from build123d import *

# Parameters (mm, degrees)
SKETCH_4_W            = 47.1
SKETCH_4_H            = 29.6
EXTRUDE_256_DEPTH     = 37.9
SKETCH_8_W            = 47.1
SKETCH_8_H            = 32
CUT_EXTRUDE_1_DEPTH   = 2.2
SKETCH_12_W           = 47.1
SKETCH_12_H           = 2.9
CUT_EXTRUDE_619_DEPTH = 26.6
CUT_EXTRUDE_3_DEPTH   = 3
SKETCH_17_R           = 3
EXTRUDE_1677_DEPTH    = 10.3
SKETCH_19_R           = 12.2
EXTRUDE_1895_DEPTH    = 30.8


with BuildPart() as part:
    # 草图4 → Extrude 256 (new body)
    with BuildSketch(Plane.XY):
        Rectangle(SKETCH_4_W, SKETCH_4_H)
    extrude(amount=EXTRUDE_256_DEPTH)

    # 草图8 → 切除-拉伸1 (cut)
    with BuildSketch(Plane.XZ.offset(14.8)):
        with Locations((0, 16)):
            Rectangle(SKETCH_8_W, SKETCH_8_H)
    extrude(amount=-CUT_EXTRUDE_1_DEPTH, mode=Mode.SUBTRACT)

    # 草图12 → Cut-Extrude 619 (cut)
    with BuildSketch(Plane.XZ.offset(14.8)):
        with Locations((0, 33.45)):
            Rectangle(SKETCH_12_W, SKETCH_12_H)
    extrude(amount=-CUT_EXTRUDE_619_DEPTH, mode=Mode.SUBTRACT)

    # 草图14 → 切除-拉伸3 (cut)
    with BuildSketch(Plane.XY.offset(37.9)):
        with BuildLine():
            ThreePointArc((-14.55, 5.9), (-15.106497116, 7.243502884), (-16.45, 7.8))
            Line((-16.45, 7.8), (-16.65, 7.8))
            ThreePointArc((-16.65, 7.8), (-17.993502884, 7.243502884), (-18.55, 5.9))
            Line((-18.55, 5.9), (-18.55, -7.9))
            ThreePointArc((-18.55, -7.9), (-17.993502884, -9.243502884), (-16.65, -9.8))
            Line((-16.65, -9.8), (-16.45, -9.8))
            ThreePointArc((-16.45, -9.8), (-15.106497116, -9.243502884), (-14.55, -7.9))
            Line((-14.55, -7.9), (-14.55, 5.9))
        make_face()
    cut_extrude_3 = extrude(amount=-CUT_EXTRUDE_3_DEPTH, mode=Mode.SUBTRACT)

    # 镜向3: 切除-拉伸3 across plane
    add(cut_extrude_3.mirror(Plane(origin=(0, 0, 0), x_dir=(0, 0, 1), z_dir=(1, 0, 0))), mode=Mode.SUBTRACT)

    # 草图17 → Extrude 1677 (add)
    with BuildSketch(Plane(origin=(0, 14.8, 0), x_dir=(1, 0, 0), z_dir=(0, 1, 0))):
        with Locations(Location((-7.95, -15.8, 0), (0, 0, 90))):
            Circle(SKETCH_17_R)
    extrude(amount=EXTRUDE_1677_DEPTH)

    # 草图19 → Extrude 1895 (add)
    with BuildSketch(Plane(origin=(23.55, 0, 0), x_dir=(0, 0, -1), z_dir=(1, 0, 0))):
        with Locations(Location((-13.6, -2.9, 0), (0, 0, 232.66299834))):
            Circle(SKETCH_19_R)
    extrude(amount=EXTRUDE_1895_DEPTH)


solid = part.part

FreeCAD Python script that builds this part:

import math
import FreeCAD as App
import Part
import Sketcher
from FreeCAD import Vector
Q = App.Units.Quantity

doc = App.newDocument("Part")
params = doc.addObject("Spreadsheet::Sheet", "Params")
for row, (alias, value) in enumerate([
    ("sketch1_width", "47.1 mm"),
    ("sketch1_height", "29.6 mm"),
    ("pad1_length", "37.9 mm"),
    ("sketch2_height", "32 mm"),
    ("sketch2_width", "47.1 mm"),
    ("pocket1_length", "2.2 mm"),
    ("sketch3_width", "47.1 mm"),
    ("sketch3_height", "2.9 mm"),
    ("pocket2_length", "26.6 mm"),
    ("sketch4_radius", "1.9 mm"),
    ("sketch4_width", "0.2 mm"),
    ("sketch4_height", "13.8 mm"),
    ("pocket3_length", "3 mm"),
    ("sketch5_diameter", "6 mm"),
    ("pad2_length", "10.3 mm"),
    ("sketch6_diameter", "24.4 mm"),
    ("pad3_length", "30.8 mm"),
], start=1):
    params.set(f"A{row}", alias)
    params.set(f"B{row}", "=" + value)
    params.setAlias(f"B{row}", alias)

body = doc.addObject("PartDesign::Body", "Body")

sketch1 = body.newObject("Sketcher::SketchObject", "Sketch")
sketch1.AttachmentSupport = (doc.getObject("XY_Plane"), [""])
sketch1.MapMode = "FlatFace"
sketch1.addGeometry(Part.LineSegment(Vector(-24, 15, 0), Vector(-24, -15, 0)), False)
sketch1.addGeometry(Part.LineSegment(Vector(-24, -15, 0), Vector(24, -15, 0)), False)
sketch1.addGeometry(Part.LineSegment(Vector(24, -15, 0), Vector(24, 15, 0)), False)
sketch1.addGeometry(Part.LineSegment(Vector(24, 15, 0), Vector(-24, 15, 0)), False)
sketch1.addConstraint(Sketcher.Constraint("Coincident", 0, 2, 1, 1))
sketch1.addConstraint(Sketcher.Constraint("Coincident", 1, 2, 2, 1))
sketch1.addConstraint(Sketcher.Constraint("Coincident", 2, 2, 3, 1))
sketch1.addConstraint(Sketcher.Constraint("Coincident", 3, 2, 0, 1))
sketch1.addConstraint(Sketcher.Constraint("Vertical", 0))
sketch1.addConstraint(Sketcher.Constraint("Horizontal", 1))
sketch1.addConstraint(Sketcher.Constraint("Vertical", 2))
sketch1.addConstraint(Sketcher.Constraint("Horizontal", 3))
sketch1.addConstraint(Sketcher.Constraint("Symmetric", 0, 2, 2, 2, -1, 1))
sketch1.addConstraint(Sketcher.Constraint("DistanceX", 1, 1, 1, 2, Q("47.1 mm")))
sketch1.addConstraint(Sketcher.Constraint("DistanceY", 0, 2, 0, 1, Q("29.6 mm")))
sketch1.setExpression("Constraints[9]", "Params.sketch1_width")
sketch1.setExpression("Constraints[10]", "Params.sketch1_height")
pad1 = body.newObject("PartDesign::Pad", "Pad")
pad1.Profile = sketch1
pad1.setExpression("Length", "Params.pad1_length")

sketch2 = body.newObject("Sketcher::SketchObject", "Sketch001")
sketch2.AttachmentSupport = (doc.getObject("XZ_Plane"), [""])
sketch2.MapMode = "FlatFace"
sketch2.AttachmentOffset = App.Placement(Vector(0, 0, 14.8), App.Rotation())
sketch2.addGeometry(Part.LineSegment(Vector(-24, 32, 0), Vector(-24, 0, 0)), False)
sketch2.addGeometry(Part.LineSegment(Vector(-24, 0, 0), Vector(24, 0, 0)), False)
sketch2.addGeometry(Part.LineSegment(Vector(24, 0, 0), Vector(24, 32, 0)), False)
sketch2.addGeometry(Part.LineSegment(Vector(24, 32, 0), Vector(-24, 32, 0)), False)
sketch2.addConstraint(Sketcher.Constraint("Coincident", 0, 2, 1, 1))
sketch2.addConstraint(Sketcher.Constraint("Coincident", 1, 2, 2, 1))
sketch2.addConstraint(Sketcher.Constraint("Coincident", 2, 2, 3, 1))
sketch2.addConstraint(Sketcher.Constraint("Coincident", 3, 2, 0, 1))
sketch2.addConstraint(Sketcher.Constraint("Vertical", 0))
sketch2.addConstraint(Sketcher.Constraint("Horizontal", 1))
sketch2.addConstraint(Sketcher.Constraint("Vertical", 2))
sketch2.addConstraint(Sketcher.Constraint("Horizontal", 3))
sketch2.addConstraint(Sketcher.Constraint("Symmetric", 0, 2, 1, 2, -1, 1))
sketch2.addConstraint(Sketcher.Constraint("DistanceY", 0, 2, 0, 1, Q("32 mm")))
sketch2.addConstraint(Sketcher.Constraint("DistanceX", 1, 1, 1, 2, Q("47.1 mm")))
sketch2.setExpression("Constraints[9]", "Params.sketch2_height")
sketch2.setExpression("Constraints[10]", "Params.sketch2_width")
pocket1 = body.newObject("PartDesign::Pocket", "Pocket")
pocket1.Profile = sketch2
pocket1.setExpression("Length", "Params.pocket1_length")

sketch3 = body.newObject("Sketcher::SketchObject", "Sketch002")
sketch3.AttachmentSupport = (doc.getObject("XZ_Plane"), [""])
sketch3.MapMode = "FlatFace"
sketch3.AttachmentOffset = App.Placement(Vector(0, 0, 14.8), App.Rotation())
sketch3.addGeometry(Part.LineSegment(Vector(-23.6, 34.9, 0), Vector(-23.6, 32, 0)), False)
sketch3.addGeometry(Part.LineSegment(Vector(-23.6, 32, 0), Vector(23.6, 32, 0)), False)
sketch3.addGeometry(Part.LineSegment(Vector(23.6, 32, 0), Vector(23.6, 34.9, 0)), False)
sketch3.addGeometry(Part.LineSegment(Vector(23.6, 34.9, 0), Vector(-23.6, 34.9, 0)), False)
sketch3.addConstraint(Sketcher.Constraint("Coincident", 0, 2, 1, 1))
sketch3.addConstraint(Sketcher.Constraint("Coincident", 1, 2, 2, 1))
sketch3.addConstraint(Sketcher.Constraint("Coincident", 2, 2, 3, 1))
sketch3.addConstraint(Sketcher.Constraint("Coincident", 3, 2, 0, 1))
sketch3.addConstraint(Sketcher.Constraint("Vertical", 0))
sketch3.addConstraint(Sketcher.Constraint("Horizontal", 1))
sketch3.addConstraint(Sketcher.Constraint("Vertical", 2))
sketch3.addConstraint(Sketcher.Constraint("Horizontal", 3))
sketch3.addConstraint(Sketcher.Constraint("DistanceX", 1, 1, 1, 2, Q("47.1 mm")))
sketch3.addConstraint(Sketcher.Constraint("DistanceY", 0, 2, 0, 1, Q("2.9 mm")))
sketch3.addConstraint(Sketcher.Constraint("DistanceY", -1, 1, 0, 2, Q("32 mm")))
sketch3.addConstraint(Sketcher.Constraint("DistanceX", 0, 2, -1, 1, Q("23.55 mm")))
sketch3.setExpression("Constraints[8]", "Params.sketch3_width")
sketch3.setExpression("Constraints[9]", "Params.sketch3_height")
pocket2 = body.newObject("PartDesign::Pocket", "Pocket001")
pocket2.Profile = sketch3
pocket2.setExpression("Length", "Params.pocket2_length")

sketch4 = body.newObject("Sketcher::SketchObject", "Sketch003")
sketch4.AttachmentSupport = (doc.getObject("XY_Plane"), [""])
sketch4.MapMode = "FlatFace"
sketch4.AttachmentOffset = App.Placement(Vector(0, 0, 37.9), App.Rotation())
sketch4.addGeometry(Part.ArcOfCircle(Part.Circle(Vector(-16.45, 5.9, 0), Vector(0, 0, 1), 1.9), math.radians(0), math.radians(90)), False)
sketch4.addGeometry(Part.LineSegment(Vector(-16.45, 7.8, 0), Vector(-16.65, 7.8, 0)), False)
sketch4.addGeometry(Part.ArcOfCircle(Part.Circle(Vector(-16.65, 5.9, 0), Vector(0, 0, 1), 1.9), math.radians(90), math.radians(180)), False)
sketch4.addGeometry(Part.LineSegment(Vector(-18.55, 5.9, 0), Vector(-18.55, -7.9, 0)), False)
sketch4.addGeometry(Part.ArcOfCircle(Part.Circle(Vector(-16.65, -7.9, 0), Vector(0, 0, 1), 1.9), math.radians(-180), math.radians(-90)), False)
sketch4.addGeometry(Part.LineSegment(Vector(-16.65, -9.8, 0), Vector(-16.45, -9.8, 0)), False)
sketch4.addGeometry(Part.ArcOfCircle(Part.Circle(Vector(-16.45, -7.9, 0), Vector(0, 0, 1), 1.9), math.radians(-90), math.radians(0)), False)
sketch4.addGeometry(Part.LineSegment(Vector(-14.55, -7.9, 0), Vector(-14.55, 5.9, 0)), False)
sketch4.addConstraint(Sketcher.Constraint("Tangent", 0, 2, 1, 1))
sketch4.addConstraint(Sketcher.Constraint("Tangent", 1, 2, 2, 1))
sketch4.addConstraint(Sketcher.Constraint("Tangent", 2, 2, 3, 1))
sketch4.addConstraint(Sketcher.Constraint("Tangent", 3, 2, 4, 1))
sketch4.addConstraint(Sketcher.Constraint("Tangent", 4, 2, 5, 1))
sketch4.addConstraint(Sketcher.Constraint("Tangent", 5, 2, 6, 1))
sketch4.addConstraint(Sketcher.Constraint("Tangent", 6, 2, 7, 1))
sketch4.addConstraint(Sketcher.Constraint("Tangent", 7, 2, 0, 1))
sketch4.addConstraint(Sketcher.Constraint("Horizontal", 1))
sketch4.addConstraint(Sketcher.Constraint("Vertical", 3))
sketch4.addConstraint(Sketcher.Constraint("Horizontal", 5))
sketch4.addConstraint(Sketcher.Constraint("Vertical", 7))
sketch4.addConstraint(Sketcher.Constraint("Equal", 0, 2))
sketch4.addConstraint(Sketcher.Constraint("Equal", 2, 4))
sketch4.addConstraint(Sketcher.Constraint("Equal", 4, 6))
sketch4.addConstraint(Sketcher.Constraint("Radius", 0, Q("1.9 mm")))
sketch4.addConstraint(Sketcher.Constraint("DistanceX", 1, 2, 1, 1, Q("0.2 mm")))
sketch4.addConstraint(Sketcher.Constraint("DistanceY", 3, 2, 3, 1, Q("13.8 mm")))
sketch4.addConstraint(Sketcher.Constraint("DistanceY", -1, 1, 0, 3, Q("5.9 mm")))
sketch4.addConstraint(Sketcher.Constraint("DistanceX", 0, 3, -1, 1, Q("16.45 mm")))
sketch4.setExpression("Constraints[15]", "Params.sketch4_radius")
sketch4.setExpression("Constraints[16]", "Params.sketch4_width")
sketch4.setExpression("Constraints[17]", "Params.sketch4_height")
pocket3 = body.newObject("PartDesign::Pocket", "Pocket002")
pocket3.Profile = sketch4
pocket3.setExpression("Length", "Params.pocket3_length")
doc.recompute()

mirrored = body.newObject("PartDesign::Mirrored", "Mirrored")
mirrored.Originals = [pocket3]
mirrored.MirrorPlane = (doc.getObject("YZ_Plane"), [""])
body.Tip = mirrored

sketch5 = body.newObject("Sketcher::SketchObject", "Sketch004")
sketch5.AttachmentSupport = (doc.getObject("XZ_Plane"), [""])
sketch5.MapMode = "FlatFace"
sketch5.AttachmentOffset = App.Placement(Vector(0, 0, -14.8), App.Rotation())
sketch5.addGeometry(Part.Circle(Vector(-8, 15.8, 0), Vector(0, 0, 1), 3), False)
sketch5.addConstraint(Sketcher.Constraint("Diameter", 0, Q("6 mm")))
sketch5.addConstraint(Sketcher.Constraint("DistanceY", -1, 1, 0, 3, Q("15.8 mm")))
sketch5.addConstraint(Sketcher.Constraint("DistanceX", 0, 3, -1, 1, Q("7.95 mm")))
sketch5.setExpression("Constraints[0]", "Params.sketch5_diameter")
pad2 = body.newObject("PartDesign::Pad", "Pad001")
pad2.Profile = sketch5
pad2.setExpression("Length", "Params.pad2_length")
pad2.Reversed = True

sketch6 = body.newObject("Sketcher::SketchObject", "Sketch005")
sketch6.AttachmentSupport = (doc.getObject("YZ_Plane"), [""])
sketch6.MapMode = "FlatFace"
sketch6.AttachmentOffset = App.Placement(Vector(0, 0, 23.55), App.Rotation())
sketch6.addGeometry(Part.Circle(Vector(-3, 14, 0), Vector(0, 0, 1), 12), False)
sketch6.addConstraint(Sketcher.Constraint("Diameter", 0, Q("24.4 mm")))
sketch6.addConstraint(Sketcher.Constraint("DistanceX", 0, 3, -1, 1, Q("2.9 mm")))
sketch6.addConstraint(Sketcher.Constraint("DistanceY", -1, 1, 0, 3, Q("13.6 mm")))
sketch6.setExpression("Constraints[0]", "Params.sketch6_diameter")
pad3 = body.newObject("PartDesign::Pad", "Pad002")
pad3.Profile = sketch6
pad3.setExpression("Length", "Params.pad3_length")

doc.recompute()
